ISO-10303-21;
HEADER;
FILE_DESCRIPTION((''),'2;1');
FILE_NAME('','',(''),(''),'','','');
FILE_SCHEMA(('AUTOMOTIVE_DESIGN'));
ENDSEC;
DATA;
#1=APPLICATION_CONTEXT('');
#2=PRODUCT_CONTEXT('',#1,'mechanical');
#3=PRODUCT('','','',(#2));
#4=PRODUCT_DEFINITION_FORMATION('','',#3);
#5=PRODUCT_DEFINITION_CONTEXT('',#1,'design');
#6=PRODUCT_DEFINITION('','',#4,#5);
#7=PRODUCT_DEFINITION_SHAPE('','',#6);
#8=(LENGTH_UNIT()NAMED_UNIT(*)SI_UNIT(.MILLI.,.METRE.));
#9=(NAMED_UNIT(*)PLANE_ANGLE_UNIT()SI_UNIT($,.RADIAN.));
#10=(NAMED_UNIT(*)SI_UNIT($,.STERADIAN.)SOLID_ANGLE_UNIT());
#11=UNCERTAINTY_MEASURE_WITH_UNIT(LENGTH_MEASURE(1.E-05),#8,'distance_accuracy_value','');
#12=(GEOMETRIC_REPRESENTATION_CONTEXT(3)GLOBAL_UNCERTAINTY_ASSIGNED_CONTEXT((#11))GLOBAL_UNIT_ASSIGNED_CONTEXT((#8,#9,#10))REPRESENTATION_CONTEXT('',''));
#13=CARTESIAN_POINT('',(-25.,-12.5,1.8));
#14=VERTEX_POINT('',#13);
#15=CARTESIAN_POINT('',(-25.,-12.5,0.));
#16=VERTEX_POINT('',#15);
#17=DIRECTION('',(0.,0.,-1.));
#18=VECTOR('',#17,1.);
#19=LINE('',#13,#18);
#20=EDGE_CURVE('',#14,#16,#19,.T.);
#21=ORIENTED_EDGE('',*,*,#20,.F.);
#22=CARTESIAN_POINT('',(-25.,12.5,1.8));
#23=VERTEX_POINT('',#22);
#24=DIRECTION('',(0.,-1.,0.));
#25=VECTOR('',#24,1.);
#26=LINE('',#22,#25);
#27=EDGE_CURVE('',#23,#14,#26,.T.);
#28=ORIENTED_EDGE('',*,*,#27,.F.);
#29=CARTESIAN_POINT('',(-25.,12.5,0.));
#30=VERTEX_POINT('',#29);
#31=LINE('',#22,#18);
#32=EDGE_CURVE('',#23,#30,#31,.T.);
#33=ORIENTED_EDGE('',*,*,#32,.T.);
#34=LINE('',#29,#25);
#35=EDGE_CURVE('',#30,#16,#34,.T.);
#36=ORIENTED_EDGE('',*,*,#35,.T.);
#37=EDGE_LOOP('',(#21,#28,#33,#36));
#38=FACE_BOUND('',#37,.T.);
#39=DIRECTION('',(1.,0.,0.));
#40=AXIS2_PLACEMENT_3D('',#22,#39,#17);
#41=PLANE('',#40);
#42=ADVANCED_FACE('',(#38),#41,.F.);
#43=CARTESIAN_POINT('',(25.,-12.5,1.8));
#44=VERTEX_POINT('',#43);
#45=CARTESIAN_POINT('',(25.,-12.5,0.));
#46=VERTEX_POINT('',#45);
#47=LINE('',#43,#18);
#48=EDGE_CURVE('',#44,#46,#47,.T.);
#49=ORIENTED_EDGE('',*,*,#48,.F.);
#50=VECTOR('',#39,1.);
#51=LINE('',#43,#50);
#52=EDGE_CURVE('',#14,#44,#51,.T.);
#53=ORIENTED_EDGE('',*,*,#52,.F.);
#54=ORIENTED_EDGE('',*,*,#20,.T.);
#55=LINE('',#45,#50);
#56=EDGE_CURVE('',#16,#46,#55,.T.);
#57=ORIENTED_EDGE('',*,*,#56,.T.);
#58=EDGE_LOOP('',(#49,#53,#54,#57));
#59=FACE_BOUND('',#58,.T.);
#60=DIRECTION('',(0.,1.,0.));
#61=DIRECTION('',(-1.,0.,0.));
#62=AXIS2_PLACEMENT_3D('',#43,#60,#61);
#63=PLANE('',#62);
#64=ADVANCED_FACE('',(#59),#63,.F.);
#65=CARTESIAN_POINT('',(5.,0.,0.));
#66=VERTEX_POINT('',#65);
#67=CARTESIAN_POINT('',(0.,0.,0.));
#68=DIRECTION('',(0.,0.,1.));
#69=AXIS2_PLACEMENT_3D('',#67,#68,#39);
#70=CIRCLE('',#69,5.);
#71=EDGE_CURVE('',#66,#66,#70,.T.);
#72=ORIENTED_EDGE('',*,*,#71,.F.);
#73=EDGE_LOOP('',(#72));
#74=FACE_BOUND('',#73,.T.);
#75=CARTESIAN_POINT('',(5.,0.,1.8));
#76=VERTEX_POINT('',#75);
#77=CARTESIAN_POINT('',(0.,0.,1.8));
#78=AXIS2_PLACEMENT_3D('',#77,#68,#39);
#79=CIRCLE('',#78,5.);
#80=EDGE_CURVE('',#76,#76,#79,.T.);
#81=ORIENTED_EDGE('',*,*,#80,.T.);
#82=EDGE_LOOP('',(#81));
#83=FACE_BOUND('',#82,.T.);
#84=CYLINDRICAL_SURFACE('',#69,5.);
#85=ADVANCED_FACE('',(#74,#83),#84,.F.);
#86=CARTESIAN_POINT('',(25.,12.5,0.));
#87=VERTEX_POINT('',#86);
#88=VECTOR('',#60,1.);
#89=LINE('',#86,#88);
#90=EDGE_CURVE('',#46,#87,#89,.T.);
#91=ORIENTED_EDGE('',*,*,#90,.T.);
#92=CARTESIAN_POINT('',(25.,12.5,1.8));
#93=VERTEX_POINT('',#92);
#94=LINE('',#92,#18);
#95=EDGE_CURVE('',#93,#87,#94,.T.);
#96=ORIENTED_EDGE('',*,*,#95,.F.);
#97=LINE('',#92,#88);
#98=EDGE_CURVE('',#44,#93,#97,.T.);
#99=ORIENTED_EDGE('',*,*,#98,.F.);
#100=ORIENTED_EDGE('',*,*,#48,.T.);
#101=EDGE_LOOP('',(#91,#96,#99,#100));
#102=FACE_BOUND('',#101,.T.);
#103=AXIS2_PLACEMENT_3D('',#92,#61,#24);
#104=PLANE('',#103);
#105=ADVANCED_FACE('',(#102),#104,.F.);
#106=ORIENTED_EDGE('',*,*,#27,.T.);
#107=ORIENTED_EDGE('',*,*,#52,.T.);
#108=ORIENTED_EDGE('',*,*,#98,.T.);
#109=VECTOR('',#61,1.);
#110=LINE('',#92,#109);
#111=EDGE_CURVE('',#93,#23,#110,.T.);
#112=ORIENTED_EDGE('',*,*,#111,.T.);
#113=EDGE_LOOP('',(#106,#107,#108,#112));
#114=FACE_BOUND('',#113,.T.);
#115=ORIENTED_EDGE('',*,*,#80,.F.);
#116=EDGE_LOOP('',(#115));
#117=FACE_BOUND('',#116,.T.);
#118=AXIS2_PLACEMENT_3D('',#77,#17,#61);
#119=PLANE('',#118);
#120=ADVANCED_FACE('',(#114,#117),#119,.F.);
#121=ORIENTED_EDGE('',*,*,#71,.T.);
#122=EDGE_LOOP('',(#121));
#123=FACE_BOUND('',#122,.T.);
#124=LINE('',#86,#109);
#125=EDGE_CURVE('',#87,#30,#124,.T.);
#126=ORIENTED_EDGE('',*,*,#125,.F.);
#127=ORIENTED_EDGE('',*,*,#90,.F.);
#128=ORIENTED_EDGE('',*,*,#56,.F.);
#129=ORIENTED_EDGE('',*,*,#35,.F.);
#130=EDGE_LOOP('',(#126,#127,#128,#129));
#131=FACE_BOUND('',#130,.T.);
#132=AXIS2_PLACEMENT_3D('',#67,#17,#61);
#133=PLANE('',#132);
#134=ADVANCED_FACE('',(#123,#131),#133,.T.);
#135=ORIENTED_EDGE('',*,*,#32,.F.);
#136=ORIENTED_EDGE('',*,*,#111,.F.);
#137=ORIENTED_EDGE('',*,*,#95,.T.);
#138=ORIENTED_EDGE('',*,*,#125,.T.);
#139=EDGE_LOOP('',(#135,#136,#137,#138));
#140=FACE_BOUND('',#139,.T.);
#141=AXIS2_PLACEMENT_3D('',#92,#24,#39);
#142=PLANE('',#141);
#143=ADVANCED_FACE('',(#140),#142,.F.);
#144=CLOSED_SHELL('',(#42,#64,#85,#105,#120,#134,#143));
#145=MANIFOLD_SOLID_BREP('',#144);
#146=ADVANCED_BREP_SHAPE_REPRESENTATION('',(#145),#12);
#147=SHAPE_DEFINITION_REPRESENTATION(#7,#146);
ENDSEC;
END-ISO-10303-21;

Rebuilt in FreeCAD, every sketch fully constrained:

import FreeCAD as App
import Part
import Sketcher
Q = App.Units.Quantity


def add_polygon(sketch, points):
    """Adds a closed chain of lines whose ends are joined by coincident constraints."""
    first, n = sketch.GeometryCount, len(points)
    for a, b in zip(points, points[1:] + points[:1]):
        sketch.addGeometry(Part.LineSegment(App.Vector(*a, 0), App.Vector(*b, 0)), False)
    for i in range(n):
        sketch.addConstraint(Sketcher.Constraint("Coincident", first + i, 2, first + (i + 1) % n, 1))

doc = App.newDocument("Part")
body = doc.addObject("PartDesign::Body", "Body")

# Sketch on XY plane
sketch1 = doc.addObject("Sketcher::SketchObject", "Sketch")
body.addObject(sketch1)
sketch1.AttachmentSupport = (doc.XY_Plane, [""])
sketch1.MapMode = "FlatFace"
add_polygon(sketch1, [(-25, 12), (-25, -12), (25, -12), (25, 12)])  # lines 0-3
sketch1.addConstraint([
    Sketcher.Constraint("Vertical", 0),
    Sketcher.Constraint("Horizontal", 1),
    Sketcher.Constraint("Vertical", 2),
    Sketcher.Constraint("Horizontal", 3),
    Sketcher.Constraint("Symmetric", 0, 2, 2, 2, -1, 1),
    Sketcher.Constraint("DistanceX", 1, 1, 1, 2, Q("50 mm")),
    Sketcher.Constraint("DistanceY", 0, 2, 0, 1, Q("25 mm")),
])
pad1 = doc.addObject("PartDesign::Pad", "Pad")
body.addObject(pad1)
pad1.Profile = sketch1
pad1.Length = 1.8

# Sketch on XY plane
sketch2 = doc.addObject("Sketcher::SketchObject", "Sketch001")
body.addObject(sketch2)
sketch2.AttachmentSupport = (doc.XY_Plane, [""])
sketch2.MapMode = "FlatFace"
sketch2.AttachmentOffset = App.Placement(App.Vector(0, 0, 1.8), App.Rotation())
sketch2.addGeometry(Part.Circle(App.Vector(0, 0, 0), App.Vector(0, 0, 1), 5), False)
sketch2.addConstraint([
    Sketcher.Constraint("Coincident", 0, 3, -1, 1),
    Sketcher.Constraint("Diameter", 0, Q("10 mm")),
])
pocket1 = doc.addObject("PartDesign::Pocket", "Pocket")
body.addObject(pocket1)
pocket1.Profile = sketch2
pocket1.Length = 1.8

doc.recompute()
